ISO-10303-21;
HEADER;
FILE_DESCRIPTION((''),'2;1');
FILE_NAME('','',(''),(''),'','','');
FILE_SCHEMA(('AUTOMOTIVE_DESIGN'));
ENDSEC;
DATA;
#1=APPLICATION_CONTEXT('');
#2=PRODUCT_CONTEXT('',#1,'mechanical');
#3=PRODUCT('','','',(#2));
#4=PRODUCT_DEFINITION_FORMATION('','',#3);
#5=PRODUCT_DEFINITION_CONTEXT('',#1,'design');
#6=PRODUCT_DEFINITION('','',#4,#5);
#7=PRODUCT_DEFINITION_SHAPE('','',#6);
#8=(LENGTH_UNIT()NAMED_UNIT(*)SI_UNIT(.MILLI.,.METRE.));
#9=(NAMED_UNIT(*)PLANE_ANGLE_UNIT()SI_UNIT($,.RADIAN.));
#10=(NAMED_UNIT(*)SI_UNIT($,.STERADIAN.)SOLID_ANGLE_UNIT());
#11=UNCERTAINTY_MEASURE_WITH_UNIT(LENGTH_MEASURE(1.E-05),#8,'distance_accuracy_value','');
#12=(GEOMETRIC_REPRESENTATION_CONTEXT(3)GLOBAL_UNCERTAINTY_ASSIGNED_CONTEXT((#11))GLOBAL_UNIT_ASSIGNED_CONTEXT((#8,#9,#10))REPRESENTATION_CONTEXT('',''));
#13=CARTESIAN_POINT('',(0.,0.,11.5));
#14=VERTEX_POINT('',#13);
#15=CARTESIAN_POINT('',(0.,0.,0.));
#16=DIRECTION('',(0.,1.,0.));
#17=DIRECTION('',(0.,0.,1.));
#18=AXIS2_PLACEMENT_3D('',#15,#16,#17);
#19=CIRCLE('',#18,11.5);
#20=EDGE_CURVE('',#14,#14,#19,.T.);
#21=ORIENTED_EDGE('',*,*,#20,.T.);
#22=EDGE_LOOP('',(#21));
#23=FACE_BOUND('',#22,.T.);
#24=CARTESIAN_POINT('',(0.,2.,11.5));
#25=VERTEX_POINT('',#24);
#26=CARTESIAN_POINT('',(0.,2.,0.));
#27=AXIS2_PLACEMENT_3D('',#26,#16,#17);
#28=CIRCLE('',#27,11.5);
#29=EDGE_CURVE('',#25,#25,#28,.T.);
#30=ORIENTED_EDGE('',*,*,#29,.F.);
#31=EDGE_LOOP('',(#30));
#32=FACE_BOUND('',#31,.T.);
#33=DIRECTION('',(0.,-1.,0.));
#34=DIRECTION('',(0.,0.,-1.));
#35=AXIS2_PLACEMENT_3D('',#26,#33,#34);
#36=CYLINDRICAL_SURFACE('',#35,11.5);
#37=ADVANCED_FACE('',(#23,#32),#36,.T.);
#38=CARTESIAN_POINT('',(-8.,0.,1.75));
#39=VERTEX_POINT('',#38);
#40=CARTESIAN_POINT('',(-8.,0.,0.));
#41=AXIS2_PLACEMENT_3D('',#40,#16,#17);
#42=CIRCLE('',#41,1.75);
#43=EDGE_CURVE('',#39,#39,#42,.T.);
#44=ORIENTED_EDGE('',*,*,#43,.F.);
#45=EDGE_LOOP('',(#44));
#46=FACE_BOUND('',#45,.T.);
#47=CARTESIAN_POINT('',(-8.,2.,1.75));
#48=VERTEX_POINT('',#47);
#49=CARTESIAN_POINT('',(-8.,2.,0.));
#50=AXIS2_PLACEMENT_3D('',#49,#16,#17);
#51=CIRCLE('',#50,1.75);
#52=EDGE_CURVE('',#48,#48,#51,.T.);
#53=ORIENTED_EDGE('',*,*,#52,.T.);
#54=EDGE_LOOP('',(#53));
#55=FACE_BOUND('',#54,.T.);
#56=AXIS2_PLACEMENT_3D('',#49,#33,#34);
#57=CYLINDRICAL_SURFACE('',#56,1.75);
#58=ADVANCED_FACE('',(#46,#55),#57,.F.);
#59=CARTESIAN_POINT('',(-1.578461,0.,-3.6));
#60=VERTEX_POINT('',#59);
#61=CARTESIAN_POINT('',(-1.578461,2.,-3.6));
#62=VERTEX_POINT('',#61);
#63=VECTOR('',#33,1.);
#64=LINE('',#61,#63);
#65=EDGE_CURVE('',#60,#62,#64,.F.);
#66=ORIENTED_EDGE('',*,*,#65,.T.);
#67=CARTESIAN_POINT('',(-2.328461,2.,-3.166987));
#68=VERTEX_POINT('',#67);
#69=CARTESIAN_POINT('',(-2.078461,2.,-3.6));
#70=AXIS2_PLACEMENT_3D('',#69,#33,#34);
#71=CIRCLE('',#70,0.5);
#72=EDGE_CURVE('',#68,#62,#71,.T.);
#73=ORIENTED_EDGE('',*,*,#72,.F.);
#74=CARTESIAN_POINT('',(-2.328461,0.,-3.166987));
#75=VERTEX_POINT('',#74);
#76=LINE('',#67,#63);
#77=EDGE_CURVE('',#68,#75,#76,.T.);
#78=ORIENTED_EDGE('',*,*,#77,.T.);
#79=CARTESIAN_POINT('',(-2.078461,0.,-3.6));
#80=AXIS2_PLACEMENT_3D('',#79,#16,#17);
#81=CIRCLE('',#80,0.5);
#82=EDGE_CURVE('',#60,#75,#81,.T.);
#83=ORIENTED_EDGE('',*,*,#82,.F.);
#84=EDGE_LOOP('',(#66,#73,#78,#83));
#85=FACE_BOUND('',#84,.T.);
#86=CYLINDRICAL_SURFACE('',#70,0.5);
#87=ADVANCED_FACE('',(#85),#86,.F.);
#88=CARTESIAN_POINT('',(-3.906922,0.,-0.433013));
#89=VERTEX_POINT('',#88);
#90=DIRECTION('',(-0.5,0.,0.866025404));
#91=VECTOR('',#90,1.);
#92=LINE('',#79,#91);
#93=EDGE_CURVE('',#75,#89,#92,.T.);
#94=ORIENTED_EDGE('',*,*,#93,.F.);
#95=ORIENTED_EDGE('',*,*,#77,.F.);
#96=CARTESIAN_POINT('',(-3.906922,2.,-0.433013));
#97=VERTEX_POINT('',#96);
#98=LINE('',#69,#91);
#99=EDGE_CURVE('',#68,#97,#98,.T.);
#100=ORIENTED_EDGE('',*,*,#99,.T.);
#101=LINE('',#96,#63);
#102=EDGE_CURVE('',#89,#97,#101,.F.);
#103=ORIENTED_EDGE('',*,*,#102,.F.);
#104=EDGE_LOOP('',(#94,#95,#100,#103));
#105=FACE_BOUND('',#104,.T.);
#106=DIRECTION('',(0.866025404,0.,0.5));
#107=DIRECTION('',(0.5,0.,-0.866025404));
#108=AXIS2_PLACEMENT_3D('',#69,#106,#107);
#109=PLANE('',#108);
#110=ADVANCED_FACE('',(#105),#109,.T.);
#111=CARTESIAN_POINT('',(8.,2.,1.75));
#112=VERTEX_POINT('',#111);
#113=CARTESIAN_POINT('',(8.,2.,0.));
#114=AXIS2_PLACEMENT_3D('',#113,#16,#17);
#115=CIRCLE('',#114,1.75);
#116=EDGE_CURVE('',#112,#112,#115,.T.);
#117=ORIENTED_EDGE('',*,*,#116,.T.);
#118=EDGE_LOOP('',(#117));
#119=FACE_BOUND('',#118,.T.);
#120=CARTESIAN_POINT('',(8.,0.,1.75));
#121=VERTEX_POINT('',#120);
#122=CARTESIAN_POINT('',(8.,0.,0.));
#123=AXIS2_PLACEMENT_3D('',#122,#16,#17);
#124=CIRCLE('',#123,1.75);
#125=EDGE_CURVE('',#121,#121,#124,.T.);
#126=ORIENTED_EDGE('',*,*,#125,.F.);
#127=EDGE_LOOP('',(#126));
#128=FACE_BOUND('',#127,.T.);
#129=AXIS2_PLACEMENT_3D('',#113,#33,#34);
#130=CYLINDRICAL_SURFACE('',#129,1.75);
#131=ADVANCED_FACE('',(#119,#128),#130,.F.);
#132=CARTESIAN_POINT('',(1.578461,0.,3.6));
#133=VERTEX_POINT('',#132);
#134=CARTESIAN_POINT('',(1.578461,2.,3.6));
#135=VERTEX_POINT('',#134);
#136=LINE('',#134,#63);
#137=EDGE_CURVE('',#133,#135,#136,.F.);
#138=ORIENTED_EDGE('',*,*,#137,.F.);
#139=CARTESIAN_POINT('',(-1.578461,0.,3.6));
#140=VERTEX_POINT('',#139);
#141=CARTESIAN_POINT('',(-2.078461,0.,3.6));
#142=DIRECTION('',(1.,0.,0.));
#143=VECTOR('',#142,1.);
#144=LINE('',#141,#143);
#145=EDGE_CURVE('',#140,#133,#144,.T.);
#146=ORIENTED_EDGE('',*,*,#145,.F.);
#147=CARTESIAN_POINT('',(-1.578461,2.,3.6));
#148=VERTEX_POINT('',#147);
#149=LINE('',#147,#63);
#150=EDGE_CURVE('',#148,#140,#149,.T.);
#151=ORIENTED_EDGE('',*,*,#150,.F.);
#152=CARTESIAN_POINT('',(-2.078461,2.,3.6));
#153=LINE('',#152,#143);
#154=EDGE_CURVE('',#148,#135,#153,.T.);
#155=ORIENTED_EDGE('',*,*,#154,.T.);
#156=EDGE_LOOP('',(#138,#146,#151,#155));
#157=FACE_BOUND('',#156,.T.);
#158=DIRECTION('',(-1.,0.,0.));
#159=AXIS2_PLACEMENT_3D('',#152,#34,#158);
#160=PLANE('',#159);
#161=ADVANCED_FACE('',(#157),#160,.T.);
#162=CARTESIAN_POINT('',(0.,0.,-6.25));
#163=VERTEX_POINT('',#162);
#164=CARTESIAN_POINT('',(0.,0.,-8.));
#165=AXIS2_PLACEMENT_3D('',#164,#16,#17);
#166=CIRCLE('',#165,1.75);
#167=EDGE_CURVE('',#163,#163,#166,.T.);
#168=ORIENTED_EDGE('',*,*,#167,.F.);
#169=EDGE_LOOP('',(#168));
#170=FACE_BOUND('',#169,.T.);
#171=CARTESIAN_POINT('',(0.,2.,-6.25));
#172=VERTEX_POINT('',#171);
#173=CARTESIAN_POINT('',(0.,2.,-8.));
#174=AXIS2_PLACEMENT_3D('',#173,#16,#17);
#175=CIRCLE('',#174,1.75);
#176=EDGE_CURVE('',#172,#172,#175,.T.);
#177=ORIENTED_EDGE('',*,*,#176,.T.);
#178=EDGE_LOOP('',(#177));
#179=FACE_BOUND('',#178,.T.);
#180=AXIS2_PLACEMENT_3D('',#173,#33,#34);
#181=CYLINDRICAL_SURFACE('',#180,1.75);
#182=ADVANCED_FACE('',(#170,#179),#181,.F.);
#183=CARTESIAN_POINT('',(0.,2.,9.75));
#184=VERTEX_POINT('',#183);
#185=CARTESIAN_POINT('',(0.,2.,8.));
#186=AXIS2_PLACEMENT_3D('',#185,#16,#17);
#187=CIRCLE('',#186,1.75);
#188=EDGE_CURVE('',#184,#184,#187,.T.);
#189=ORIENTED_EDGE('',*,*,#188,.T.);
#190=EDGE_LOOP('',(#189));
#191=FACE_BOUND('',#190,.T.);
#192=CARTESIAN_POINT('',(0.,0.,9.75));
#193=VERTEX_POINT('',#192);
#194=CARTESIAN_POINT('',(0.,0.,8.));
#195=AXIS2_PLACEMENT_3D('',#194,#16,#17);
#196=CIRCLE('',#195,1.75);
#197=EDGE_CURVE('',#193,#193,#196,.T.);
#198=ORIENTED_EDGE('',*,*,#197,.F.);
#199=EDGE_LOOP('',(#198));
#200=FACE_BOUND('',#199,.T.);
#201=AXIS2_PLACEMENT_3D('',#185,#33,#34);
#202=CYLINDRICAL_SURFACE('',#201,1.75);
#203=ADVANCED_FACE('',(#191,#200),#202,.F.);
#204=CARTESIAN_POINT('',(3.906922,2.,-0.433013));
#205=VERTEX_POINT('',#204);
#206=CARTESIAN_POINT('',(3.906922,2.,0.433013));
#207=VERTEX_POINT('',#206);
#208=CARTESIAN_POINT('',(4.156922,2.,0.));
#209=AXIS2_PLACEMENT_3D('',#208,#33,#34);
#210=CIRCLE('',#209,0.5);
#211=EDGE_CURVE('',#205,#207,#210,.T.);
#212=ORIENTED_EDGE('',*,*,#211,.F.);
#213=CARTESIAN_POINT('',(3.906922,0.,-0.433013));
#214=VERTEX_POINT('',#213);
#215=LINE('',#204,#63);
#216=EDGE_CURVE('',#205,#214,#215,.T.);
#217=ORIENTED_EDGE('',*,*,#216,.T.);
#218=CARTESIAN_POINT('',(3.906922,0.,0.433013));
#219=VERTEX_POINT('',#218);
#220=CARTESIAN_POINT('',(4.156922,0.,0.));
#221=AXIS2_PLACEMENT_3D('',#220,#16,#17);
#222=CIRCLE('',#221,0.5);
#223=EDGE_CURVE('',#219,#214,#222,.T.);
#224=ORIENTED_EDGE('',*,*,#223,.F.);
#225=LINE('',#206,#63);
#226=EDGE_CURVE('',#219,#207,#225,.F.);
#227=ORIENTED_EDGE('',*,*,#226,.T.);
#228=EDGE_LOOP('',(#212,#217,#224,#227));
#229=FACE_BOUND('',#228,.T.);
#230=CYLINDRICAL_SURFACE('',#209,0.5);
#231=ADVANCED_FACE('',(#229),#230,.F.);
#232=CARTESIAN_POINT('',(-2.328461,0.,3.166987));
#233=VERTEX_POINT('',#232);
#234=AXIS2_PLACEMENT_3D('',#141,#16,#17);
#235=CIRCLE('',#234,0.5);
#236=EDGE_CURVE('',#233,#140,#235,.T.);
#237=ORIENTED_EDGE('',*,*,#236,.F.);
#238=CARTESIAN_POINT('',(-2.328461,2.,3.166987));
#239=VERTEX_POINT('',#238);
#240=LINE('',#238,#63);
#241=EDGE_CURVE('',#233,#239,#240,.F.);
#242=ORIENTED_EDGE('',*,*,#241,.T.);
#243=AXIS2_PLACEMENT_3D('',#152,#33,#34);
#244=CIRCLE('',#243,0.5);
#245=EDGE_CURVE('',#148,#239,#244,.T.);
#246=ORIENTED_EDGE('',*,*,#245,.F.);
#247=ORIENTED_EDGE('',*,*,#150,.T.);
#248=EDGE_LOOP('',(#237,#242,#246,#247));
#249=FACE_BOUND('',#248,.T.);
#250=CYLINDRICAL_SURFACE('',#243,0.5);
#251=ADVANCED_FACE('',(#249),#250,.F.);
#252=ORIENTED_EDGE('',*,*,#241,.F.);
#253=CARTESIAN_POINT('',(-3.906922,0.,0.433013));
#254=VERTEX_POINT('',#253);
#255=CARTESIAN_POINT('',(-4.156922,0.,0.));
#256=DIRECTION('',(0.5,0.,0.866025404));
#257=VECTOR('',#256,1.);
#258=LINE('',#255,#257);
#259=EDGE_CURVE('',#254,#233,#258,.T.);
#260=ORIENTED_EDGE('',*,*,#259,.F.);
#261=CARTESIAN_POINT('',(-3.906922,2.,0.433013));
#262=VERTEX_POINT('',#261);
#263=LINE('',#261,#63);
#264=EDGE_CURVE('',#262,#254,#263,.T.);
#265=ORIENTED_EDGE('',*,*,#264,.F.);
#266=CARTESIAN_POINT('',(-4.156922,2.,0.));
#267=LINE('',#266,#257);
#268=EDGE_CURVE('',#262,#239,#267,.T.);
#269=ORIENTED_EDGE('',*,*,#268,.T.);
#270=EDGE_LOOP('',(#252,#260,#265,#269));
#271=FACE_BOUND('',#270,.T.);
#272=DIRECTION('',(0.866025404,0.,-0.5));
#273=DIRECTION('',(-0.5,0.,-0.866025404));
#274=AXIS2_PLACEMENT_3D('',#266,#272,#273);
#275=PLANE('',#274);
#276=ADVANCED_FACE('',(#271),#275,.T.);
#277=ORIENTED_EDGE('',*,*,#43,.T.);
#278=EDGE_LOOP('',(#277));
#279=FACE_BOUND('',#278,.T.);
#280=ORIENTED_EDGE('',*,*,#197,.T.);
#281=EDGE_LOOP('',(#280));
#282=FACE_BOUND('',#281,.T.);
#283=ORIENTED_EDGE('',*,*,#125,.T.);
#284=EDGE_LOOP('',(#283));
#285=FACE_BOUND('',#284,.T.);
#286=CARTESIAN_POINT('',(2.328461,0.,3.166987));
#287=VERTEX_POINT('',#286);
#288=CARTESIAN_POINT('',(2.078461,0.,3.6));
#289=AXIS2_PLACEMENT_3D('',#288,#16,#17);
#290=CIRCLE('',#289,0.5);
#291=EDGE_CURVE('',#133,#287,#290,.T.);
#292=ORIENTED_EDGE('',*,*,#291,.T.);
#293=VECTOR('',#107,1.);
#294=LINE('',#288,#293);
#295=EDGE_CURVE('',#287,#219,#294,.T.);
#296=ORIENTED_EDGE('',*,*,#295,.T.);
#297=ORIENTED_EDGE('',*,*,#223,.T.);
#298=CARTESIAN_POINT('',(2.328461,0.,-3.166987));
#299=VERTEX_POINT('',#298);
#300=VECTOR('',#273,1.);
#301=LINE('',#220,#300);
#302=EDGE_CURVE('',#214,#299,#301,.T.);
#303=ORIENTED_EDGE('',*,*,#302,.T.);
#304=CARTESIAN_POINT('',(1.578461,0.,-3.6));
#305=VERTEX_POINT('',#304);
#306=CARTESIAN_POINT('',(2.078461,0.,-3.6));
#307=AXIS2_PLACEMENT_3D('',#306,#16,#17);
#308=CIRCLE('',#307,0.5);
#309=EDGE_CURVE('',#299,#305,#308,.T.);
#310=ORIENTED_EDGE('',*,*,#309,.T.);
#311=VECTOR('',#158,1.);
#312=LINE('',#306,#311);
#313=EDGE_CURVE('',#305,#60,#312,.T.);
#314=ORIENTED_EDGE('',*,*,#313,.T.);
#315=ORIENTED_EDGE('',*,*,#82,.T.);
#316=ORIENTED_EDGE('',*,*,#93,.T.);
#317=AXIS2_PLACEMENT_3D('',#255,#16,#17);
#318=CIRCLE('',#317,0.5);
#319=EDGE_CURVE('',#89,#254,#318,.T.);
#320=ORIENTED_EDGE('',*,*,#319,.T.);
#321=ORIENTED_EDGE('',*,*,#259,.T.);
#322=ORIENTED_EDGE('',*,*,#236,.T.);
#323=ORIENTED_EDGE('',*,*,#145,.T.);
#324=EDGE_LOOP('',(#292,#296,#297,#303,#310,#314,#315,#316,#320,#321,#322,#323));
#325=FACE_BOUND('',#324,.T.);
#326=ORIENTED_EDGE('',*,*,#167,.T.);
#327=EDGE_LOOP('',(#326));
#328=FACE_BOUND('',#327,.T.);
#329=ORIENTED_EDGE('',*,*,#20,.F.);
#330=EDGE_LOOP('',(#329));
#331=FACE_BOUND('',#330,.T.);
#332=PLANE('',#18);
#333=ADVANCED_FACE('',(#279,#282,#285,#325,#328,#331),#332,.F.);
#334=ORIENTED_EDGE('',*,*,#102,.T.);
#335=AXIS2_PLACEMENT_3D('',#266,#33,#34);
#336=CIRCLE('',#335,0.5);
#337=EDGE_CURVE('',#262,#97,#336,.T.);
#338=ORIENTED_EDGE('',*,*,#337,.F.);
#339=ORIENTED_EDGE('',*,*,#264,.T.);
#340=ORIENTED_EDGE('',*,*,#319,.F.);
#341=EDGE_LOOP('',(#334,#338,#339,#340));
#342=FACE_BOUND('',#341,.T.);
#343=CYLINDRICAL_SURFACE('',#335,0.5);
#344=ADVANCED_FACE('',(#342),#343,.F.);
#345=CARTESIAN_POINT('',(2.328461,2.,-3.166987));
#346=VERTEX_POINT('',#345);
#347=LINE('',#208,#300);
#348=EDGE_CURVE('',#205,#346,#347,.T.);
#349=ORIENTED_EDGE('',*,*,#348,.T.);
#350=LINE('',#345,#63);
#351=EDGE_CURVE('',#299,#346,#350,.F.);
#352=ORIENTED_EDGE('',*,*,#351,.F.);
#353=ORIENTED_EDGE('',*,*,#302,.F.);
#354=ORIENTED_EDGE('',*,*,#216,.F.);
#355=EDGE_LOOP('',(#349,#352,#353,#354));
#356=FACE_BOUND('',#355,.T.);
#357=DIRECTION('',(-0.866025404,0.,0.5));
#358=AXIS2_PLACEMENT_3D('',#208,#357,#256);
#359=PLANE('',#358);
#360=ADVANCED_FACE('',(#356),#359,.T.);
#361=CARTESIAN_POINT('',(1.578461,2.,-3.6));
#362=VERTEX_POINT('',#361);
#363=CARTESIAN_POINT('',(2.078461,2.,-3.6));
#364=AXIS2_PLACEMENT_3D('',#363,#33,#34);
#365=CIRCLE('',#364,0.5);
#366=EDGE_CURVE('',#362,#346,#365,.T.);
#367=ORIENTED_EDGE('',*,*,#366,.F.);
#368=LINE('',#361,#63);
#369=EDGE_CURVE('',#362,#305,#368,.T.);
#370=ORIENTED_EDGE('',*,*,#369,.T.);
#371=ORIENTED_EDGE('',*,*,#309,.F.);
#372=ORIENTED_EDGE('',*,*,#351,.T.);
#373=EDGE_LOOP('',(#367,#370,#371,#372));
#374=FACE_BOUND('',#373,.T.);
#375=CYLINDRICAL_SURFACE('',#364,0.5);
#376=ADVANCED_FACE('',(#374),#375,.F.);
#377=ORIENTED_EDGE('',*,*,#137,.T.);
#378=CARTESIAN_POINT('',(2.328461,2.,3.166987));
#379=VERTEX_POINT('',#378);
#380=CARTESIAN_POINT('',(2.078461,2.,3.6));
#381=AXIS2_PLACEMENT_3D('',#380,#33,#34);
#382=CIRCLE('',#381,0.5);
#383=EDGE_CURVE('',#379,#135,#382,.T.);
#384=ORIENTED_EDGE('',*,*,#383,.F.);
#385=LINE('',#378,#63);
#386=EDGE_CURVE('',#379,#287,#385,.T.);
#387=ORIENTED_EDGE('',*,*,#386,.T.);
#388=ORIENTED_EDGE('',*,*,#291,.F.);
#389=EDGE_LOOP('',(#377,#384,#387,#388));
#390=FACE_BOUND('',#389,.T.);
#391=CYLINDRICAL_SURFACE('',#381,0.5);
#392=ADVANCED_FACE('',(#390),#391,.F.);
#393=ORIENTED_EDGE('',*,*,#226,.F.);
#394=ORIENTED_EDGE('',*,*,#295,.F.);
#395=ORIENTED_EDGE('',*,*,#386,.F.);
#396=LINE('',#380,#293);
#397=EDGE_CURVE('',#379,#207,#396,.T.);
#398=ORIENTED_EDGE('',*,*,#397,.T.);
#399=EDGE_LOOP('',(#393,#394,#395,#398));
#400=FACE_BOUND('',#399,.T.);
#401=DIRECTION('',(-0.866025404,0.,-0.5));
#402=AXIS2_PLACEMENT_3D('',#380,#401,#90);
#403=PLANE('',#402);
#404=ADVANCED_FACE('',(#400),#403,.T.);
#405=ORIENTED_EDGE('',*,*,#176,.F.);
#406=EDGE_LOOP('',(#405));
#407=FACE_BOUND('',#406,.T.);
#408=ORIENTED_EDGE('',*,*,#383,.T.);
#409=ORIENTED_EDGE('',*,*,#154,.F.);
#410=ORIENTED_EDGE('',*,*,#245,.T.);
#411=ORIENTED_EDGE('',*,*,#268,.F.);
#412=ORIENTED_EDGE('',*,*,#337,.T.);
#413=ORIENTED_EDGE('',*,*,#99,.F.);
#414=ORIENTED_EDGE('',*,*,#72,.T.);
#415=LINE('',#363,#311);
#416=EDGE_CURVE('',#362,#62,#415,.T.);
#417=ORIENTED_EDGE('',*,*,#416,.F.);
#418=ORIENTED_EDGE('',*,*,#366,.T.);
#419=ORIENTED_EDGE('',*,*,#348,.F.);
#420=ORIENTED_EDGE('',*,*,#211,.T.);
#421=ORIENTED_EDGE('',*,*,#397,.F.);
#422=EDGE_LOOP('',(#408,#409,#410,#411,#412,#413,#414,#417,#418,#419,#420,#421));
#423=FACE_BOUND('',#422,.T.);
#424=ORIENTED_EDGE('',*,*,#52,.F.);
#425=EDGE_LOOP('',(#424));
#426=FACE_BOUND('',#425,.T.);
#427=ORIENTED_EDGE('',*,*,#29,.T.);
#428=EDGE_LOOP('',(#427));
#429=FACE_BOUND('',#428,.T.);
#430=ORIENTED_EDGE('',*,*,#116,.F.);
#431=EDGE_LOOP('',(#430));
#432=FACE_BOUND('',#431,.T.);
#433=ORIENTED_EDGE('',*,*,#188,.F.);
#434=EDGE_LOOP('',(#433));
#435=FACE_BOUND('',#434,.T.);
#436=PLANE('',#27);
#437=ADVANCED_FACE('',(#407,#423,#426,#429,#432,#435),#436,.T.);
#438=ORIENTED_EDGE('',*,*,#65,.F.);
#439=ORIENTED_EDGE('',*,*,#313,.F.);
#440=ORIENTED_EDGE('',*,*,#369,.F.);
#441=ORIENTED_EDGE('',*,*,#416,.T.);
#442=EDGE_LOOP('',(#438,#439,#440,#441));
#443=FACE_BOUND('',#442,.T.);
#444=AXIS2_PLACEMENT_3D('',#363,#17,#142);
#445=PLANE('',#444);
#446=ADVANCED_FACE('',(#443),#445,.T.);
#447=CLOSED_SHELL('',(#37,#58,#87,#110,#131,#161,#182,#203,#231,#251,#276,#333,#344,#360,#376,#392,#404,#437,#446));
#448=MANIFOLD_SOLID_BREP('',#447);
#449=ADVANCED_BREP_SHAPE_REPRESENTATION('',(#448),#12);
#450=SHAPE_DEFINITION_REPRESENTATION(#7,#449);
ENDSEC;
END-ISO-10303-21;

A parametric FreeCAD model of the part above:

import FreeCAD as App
import Part
import Sketcher

V = App.Vector
Q = App.Units.Quantity


def add_polygon(sketch, points):
    """Adds a closed chain of lines whose ends are joined by coincident constraints."""
    first, n = sketch.GeometryCount, len(points)
    for a, b in zip(points, points[1:] + points[:1]):
        sketch.addGeometry(Part.LineSegment(App.Vector(*a, 0), App.Vector(*b, 0)), False)
    for i in range(n):
        sketch.addConstraint(Sketcher.Constraint("Coincident", first + i, 2, first + (i + 1) % n, 1))

doc = App.newDocument("Part")
params = doc.addObject("Spreadsheet::Sheet", "Params")
for row, (alias, value) in enumerate([
    ("sketch1_diameter", "23 mm"),
    ("sketch1_diameter2", "3.5 mm"),
    ("pad1_length", "2 mm"),
    ("sketch2_diameter", "1 mm"),
], start=1):
    params.set(f"A{row}", alias)
    params.set(f"B{row}", "=" + value)
    params.setAlias(f"B{row}", alias)

body = doc.addObject("PartDesign::Body", "Body")

# Sketch on XZ plane
sketch1 = doc.addObject("Sketcher::SketchObject", "Sketch")
body.addObject(sketch1)
sketch1.AttachmentSupport = (doc.XZ_Plane, [""])
sketch1.MapMode = "FlatFace"
sketch1.addGeometry(Part.Circle(V(0, 0, 0), V(0, 0, 1), 11.5), False)  # 0
sketch1.addGeometry(Part.Circle(V(-8, 0, 0), V(0, 0, 1), 1.8), False)  # 1
sketch1.addGeometry(Part.Circle(V(0, -8, 0), V(0, 0, 1), 1.8), False)  # 2
sketch1.addGeometry(Part.Circle(V(8, 0, 0), V(0, 0, 1), 1.8), False)  # 3
add_polygon(sketch1, [(-2.1, -3.6), (2.1, -3.6), (4.2, 0), (2.1, 3.6), (-2.1, 3.6), (-4.2, 0)])  # lines 4-9
sketch1.addGeometry(Part.Circle(V(0, 8, 0), V(0, 0, 1), 1.8), False)  # 10
sketch1.addConstraint([
    Sketcher.Constraint("Horizontal", 4),
    Sketcher.Constraint("Horizontal", 7),
    Sketcher.Constraint("Coincident", 0, 3, -1, 1),
    Sketcher.Constraint("Equal", 1, 2),
    Sketcher.Constraint("Equal", 2, 3),
    Sketcher.Constraint("Equal", 3, 10),
    Sketcher.Constraint("Symmetric", 1, 3, 3, 3, -1, 1),
    Sketcher.Constraint("Symmetric", 2, 3, 10, 3, -1, 1),
    Sketcher.Constraint("Symmetric", 4, 2, 7, 2, -1, 1),
    Sketcher.Constraint("Symmetric", 5, 2, 8, 2, -1, 1),
    Sketcher.Constraint("PointOnObject", 1, 3, -1),
    Sketcher.Constraint("PointOnObject", 2, 3, -2),
    Sketcher.Constraint("PointOnObject", 5, 2, -1),
    Sketcher.Constraint("Parallel", 6, 9),
    Sketcher.Constraint("Vertical", 4, 2, 6, 2),
    Sketcher.Constraint("Diameter", 0, 23.0),
    Sketcher.Constraint("Diameter", 1, 3.5),
    Sketcher.Constraint("Angle", 5, Q("60 deg")),
    Sketcher.Constraint("DistanceX", 1, 3, -1, 1, 8.0),
    Sketcher.Constraint("DistanceY", 2, 3, -1, 1, 8.0),
    Sketcher.Constraint("DistanceY", 4, 2, -1, 1, 3.6),
    Sketcher.Constraint("DistanceX", 4, 1, 4, 2, 4.156922),
])
sketch1.setExpression("Constraints[21]", "Params.sketch1_diameter")
sketch1.setExpression("Constraints[22]", "Params.sketch1_diameter2")
pad1 = doc.addObject("PartDesign::Pad", "Pad")
body.addObject(pad1)
pad1.Profile = sketch1
pad1.setExpression("Length", "Params.pad1_length")
pad1.Reversed = True

# Sketch on XZ plane
sketch2 = doc.addObject("Sketcher::SketchObject", "Sketch001")
body.addObject(sketch2)
sketch2.AttachmentSupport = (doc.XZ_Plane, [""])
sketch2.MapMode = "FlatFace"
sketch2.addGeometry([
    Part.Circle(V(-2.1, 3.6, 0), V(0, 0, 1), 0.5),  # 0
    Part.Circle(V(2.1, 3.6, 0), V(0, 0, 1), 0.5),  # 1
    Part.Circle(V(4.2, 0, 0), V(0, 0, 1), 0.5),  # 2
    Part.Circle(V(2.1, -3.6, 0), V(0, 0, 1), 0.5),  # 3
    Part.Circle(V(-2.1, -3.6, 0), V(0, 0, 1), 0.5),  # 4
    Part.Circle(V(-4.2, 0, 0), V(0, 0, 1), 0.5),  # 5
], False)
sketch2.addConstraint([
    Sketcher.Constraint("Equal", 0, 1),
    Sketcher.Constraint("Equal", 1, 2),
    Sketcher.Constraint("Equal", 2, 3),
    Sketcher.Constraint("Equal", 3, 4),
    Sketcher.Constraint("Equal", 4, 5),
    Sketcher.Constraint("Symmetric", 0, 3, 3, 3, -1, 1),
    Sketcher.Constraint("Symmetric", 1, 3, 4, 3, -1, 1),
    Sketcher.Constraint("Symmetric", 2, 3, 5, 3, -1, 1),
    Sketcher.Constraint("Symmetric", 0, 3, 1, 3, -2),
    Sketcher.Constraint("PointOnObject", 2, 3, -1),
    Sketcher.Constraint("Diameter", 0, 1.0),
    Sketcher.Constraint("DistanceY", -1, 1, 0, 3, 3.6),
    Sketcher.Constraint("DistanceX", 0, 3, -1, 1, 2.078461),
    Sketcher.Constraint("DistanceX", -1, 1, 2, 3, 4.156922),
])
sketch2.setExpression("Constraints[10]", "Params.sketch2_diameter")
pocket1 = doc.addObject("PartDesign::Pocket", "Pocket")
body.addObject(pocket1)
pocket1.Profile = sketch2
pocket1.Type = "ThroughAll"
pocket1.Midplane = True

doc.recompute()
